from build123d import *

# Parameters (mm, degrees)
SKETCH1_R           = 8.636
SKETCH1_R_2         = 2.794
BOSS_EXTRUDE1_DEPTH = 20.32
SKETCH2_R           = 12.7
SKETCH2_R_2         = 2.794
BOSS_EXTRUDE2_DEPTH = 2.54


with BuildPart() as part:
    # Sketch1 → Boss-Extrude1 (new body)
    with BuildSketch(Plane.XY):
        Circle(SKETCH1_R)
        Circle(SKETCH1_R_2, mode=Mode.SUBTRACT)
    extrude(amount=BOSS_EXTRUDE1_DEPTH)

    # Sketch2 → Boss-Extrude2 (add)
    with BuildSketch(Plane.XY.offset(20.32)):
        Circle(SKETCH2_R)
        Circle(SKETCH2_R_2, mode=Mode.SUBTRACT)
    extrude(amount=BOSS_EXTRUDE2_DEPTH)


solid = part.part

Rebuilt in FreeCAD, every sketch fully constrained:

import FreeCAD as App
import Part
import Sketcher
Q = App.Units.Quantity

doc = App.newDocument("Part")
params = doc.addObject("Spreadsheet::Sheet", "Params")
for row, (alias, value) in enumerate([
    ("sketch1_diameter", "0.68 in"),
    ("sketch1_diameter2", "0.22 in"),
    ("pad1_length", "0.8 in"),
    ("sketch2_diameter", "1 in"),
    ("sketch2_diameter2", "0.22 in"),
    ("pad2_length", "0.1 in"),
], start=1):
    params.set(f"A{row}", alias)
    params.set(f"B{row}", "=" + value)
    params.setAlias(f"B{row}", alias)

body = doc.addObject("PartDesign::Body", "Body")

# Sketch on XY plane
sketch1 = body.newObject("Sketcher::SketchObject", "Sketch")
sketch1.AttachmentSupport = (doc.getObject("XY_Plane"), [""])
sketch1.MapMode = "FlatFace"
sketch1.addGeometry(Part.Circle(App.Vector(0, 0, 0), App.Vector(0, 0, 1), 8.636), False)
sketch1.addGeometry(Part.Circle(App.Vector(0, 0, 0), App.Vector(0, 0, 1), 2.794), False)
sketch1.addConstraint(Sketcher.Constraint("Coincident", 0, 3, -1, 1))
sketch1.addConstraint(Sketcher.Constraint("Coincident", 1, 3, -1, 1))
sketch1.addConstraint(Sketcher.Constraint("Diameter", 0, Q("0.68 in")))
sketch1.addConstraint(Sketcher.Constraint("Diameter", 1, Q("0.22 in")))
sketch1.setExpression("Constraints[2]", "Params.sketch1_diameter")
sketch1.setExpression("Constraints[3]", "Params.sketch1_diameter2")
pad1 = body.newObject("PartDesign::Pad", "Pad")
pad1.Profile = sketch1
pad1.setExpression("Length", "Params.pad1_length")

# Sketch on XY plane
sketch2 = body.newObject("Sketcher::SketchObject", "Sketch001")
sketch2.AttachmentSupport = (doc.getObject("XY_Plane"), [""])
sketch2.MapMode = "FlatFace"
sketch2.AttachmentOffset = App.Placement(App.Vector(0, 0, 0.8 * 25.4), App.Rotation())
sketch2.addGeometry(Part.Circle(App.Vector(0, 0, 0), App.Vector(0, 0, 1), 12.7), False)
sketch2.addGeometry(Part.Circle(App.Vector(0, 0, 0), App.Vector(0, 0, 1), 2.794), False)
sketch2.addConstraint(Sketcher.Constraint("Coincident", 0, 3, -1, 1))
sketch2.addConstraint(Sketcher.Constraint("Coincident", 1, 3, -1, 1))
sketch2.addConstraint(Sketcher.Constraint("Diameter", 0, Q("1 in")))
sketch2.addConstraint(Sketcher.Constraint("Diameter", 1, Q("0.22 in")))
sketch2.setExpression("Constraints[2]", "Params.sketch2_diameter")
sketch2.setExpression("Constraints[3]", "Params.sketch2_diameter2")
pad2 = body.newObject("PartDesign::Pad", "Pad001")
pad2.Profile = sketch2
pad2.setExpression("Length", "Params.pad2_length")

doc.recompute()
